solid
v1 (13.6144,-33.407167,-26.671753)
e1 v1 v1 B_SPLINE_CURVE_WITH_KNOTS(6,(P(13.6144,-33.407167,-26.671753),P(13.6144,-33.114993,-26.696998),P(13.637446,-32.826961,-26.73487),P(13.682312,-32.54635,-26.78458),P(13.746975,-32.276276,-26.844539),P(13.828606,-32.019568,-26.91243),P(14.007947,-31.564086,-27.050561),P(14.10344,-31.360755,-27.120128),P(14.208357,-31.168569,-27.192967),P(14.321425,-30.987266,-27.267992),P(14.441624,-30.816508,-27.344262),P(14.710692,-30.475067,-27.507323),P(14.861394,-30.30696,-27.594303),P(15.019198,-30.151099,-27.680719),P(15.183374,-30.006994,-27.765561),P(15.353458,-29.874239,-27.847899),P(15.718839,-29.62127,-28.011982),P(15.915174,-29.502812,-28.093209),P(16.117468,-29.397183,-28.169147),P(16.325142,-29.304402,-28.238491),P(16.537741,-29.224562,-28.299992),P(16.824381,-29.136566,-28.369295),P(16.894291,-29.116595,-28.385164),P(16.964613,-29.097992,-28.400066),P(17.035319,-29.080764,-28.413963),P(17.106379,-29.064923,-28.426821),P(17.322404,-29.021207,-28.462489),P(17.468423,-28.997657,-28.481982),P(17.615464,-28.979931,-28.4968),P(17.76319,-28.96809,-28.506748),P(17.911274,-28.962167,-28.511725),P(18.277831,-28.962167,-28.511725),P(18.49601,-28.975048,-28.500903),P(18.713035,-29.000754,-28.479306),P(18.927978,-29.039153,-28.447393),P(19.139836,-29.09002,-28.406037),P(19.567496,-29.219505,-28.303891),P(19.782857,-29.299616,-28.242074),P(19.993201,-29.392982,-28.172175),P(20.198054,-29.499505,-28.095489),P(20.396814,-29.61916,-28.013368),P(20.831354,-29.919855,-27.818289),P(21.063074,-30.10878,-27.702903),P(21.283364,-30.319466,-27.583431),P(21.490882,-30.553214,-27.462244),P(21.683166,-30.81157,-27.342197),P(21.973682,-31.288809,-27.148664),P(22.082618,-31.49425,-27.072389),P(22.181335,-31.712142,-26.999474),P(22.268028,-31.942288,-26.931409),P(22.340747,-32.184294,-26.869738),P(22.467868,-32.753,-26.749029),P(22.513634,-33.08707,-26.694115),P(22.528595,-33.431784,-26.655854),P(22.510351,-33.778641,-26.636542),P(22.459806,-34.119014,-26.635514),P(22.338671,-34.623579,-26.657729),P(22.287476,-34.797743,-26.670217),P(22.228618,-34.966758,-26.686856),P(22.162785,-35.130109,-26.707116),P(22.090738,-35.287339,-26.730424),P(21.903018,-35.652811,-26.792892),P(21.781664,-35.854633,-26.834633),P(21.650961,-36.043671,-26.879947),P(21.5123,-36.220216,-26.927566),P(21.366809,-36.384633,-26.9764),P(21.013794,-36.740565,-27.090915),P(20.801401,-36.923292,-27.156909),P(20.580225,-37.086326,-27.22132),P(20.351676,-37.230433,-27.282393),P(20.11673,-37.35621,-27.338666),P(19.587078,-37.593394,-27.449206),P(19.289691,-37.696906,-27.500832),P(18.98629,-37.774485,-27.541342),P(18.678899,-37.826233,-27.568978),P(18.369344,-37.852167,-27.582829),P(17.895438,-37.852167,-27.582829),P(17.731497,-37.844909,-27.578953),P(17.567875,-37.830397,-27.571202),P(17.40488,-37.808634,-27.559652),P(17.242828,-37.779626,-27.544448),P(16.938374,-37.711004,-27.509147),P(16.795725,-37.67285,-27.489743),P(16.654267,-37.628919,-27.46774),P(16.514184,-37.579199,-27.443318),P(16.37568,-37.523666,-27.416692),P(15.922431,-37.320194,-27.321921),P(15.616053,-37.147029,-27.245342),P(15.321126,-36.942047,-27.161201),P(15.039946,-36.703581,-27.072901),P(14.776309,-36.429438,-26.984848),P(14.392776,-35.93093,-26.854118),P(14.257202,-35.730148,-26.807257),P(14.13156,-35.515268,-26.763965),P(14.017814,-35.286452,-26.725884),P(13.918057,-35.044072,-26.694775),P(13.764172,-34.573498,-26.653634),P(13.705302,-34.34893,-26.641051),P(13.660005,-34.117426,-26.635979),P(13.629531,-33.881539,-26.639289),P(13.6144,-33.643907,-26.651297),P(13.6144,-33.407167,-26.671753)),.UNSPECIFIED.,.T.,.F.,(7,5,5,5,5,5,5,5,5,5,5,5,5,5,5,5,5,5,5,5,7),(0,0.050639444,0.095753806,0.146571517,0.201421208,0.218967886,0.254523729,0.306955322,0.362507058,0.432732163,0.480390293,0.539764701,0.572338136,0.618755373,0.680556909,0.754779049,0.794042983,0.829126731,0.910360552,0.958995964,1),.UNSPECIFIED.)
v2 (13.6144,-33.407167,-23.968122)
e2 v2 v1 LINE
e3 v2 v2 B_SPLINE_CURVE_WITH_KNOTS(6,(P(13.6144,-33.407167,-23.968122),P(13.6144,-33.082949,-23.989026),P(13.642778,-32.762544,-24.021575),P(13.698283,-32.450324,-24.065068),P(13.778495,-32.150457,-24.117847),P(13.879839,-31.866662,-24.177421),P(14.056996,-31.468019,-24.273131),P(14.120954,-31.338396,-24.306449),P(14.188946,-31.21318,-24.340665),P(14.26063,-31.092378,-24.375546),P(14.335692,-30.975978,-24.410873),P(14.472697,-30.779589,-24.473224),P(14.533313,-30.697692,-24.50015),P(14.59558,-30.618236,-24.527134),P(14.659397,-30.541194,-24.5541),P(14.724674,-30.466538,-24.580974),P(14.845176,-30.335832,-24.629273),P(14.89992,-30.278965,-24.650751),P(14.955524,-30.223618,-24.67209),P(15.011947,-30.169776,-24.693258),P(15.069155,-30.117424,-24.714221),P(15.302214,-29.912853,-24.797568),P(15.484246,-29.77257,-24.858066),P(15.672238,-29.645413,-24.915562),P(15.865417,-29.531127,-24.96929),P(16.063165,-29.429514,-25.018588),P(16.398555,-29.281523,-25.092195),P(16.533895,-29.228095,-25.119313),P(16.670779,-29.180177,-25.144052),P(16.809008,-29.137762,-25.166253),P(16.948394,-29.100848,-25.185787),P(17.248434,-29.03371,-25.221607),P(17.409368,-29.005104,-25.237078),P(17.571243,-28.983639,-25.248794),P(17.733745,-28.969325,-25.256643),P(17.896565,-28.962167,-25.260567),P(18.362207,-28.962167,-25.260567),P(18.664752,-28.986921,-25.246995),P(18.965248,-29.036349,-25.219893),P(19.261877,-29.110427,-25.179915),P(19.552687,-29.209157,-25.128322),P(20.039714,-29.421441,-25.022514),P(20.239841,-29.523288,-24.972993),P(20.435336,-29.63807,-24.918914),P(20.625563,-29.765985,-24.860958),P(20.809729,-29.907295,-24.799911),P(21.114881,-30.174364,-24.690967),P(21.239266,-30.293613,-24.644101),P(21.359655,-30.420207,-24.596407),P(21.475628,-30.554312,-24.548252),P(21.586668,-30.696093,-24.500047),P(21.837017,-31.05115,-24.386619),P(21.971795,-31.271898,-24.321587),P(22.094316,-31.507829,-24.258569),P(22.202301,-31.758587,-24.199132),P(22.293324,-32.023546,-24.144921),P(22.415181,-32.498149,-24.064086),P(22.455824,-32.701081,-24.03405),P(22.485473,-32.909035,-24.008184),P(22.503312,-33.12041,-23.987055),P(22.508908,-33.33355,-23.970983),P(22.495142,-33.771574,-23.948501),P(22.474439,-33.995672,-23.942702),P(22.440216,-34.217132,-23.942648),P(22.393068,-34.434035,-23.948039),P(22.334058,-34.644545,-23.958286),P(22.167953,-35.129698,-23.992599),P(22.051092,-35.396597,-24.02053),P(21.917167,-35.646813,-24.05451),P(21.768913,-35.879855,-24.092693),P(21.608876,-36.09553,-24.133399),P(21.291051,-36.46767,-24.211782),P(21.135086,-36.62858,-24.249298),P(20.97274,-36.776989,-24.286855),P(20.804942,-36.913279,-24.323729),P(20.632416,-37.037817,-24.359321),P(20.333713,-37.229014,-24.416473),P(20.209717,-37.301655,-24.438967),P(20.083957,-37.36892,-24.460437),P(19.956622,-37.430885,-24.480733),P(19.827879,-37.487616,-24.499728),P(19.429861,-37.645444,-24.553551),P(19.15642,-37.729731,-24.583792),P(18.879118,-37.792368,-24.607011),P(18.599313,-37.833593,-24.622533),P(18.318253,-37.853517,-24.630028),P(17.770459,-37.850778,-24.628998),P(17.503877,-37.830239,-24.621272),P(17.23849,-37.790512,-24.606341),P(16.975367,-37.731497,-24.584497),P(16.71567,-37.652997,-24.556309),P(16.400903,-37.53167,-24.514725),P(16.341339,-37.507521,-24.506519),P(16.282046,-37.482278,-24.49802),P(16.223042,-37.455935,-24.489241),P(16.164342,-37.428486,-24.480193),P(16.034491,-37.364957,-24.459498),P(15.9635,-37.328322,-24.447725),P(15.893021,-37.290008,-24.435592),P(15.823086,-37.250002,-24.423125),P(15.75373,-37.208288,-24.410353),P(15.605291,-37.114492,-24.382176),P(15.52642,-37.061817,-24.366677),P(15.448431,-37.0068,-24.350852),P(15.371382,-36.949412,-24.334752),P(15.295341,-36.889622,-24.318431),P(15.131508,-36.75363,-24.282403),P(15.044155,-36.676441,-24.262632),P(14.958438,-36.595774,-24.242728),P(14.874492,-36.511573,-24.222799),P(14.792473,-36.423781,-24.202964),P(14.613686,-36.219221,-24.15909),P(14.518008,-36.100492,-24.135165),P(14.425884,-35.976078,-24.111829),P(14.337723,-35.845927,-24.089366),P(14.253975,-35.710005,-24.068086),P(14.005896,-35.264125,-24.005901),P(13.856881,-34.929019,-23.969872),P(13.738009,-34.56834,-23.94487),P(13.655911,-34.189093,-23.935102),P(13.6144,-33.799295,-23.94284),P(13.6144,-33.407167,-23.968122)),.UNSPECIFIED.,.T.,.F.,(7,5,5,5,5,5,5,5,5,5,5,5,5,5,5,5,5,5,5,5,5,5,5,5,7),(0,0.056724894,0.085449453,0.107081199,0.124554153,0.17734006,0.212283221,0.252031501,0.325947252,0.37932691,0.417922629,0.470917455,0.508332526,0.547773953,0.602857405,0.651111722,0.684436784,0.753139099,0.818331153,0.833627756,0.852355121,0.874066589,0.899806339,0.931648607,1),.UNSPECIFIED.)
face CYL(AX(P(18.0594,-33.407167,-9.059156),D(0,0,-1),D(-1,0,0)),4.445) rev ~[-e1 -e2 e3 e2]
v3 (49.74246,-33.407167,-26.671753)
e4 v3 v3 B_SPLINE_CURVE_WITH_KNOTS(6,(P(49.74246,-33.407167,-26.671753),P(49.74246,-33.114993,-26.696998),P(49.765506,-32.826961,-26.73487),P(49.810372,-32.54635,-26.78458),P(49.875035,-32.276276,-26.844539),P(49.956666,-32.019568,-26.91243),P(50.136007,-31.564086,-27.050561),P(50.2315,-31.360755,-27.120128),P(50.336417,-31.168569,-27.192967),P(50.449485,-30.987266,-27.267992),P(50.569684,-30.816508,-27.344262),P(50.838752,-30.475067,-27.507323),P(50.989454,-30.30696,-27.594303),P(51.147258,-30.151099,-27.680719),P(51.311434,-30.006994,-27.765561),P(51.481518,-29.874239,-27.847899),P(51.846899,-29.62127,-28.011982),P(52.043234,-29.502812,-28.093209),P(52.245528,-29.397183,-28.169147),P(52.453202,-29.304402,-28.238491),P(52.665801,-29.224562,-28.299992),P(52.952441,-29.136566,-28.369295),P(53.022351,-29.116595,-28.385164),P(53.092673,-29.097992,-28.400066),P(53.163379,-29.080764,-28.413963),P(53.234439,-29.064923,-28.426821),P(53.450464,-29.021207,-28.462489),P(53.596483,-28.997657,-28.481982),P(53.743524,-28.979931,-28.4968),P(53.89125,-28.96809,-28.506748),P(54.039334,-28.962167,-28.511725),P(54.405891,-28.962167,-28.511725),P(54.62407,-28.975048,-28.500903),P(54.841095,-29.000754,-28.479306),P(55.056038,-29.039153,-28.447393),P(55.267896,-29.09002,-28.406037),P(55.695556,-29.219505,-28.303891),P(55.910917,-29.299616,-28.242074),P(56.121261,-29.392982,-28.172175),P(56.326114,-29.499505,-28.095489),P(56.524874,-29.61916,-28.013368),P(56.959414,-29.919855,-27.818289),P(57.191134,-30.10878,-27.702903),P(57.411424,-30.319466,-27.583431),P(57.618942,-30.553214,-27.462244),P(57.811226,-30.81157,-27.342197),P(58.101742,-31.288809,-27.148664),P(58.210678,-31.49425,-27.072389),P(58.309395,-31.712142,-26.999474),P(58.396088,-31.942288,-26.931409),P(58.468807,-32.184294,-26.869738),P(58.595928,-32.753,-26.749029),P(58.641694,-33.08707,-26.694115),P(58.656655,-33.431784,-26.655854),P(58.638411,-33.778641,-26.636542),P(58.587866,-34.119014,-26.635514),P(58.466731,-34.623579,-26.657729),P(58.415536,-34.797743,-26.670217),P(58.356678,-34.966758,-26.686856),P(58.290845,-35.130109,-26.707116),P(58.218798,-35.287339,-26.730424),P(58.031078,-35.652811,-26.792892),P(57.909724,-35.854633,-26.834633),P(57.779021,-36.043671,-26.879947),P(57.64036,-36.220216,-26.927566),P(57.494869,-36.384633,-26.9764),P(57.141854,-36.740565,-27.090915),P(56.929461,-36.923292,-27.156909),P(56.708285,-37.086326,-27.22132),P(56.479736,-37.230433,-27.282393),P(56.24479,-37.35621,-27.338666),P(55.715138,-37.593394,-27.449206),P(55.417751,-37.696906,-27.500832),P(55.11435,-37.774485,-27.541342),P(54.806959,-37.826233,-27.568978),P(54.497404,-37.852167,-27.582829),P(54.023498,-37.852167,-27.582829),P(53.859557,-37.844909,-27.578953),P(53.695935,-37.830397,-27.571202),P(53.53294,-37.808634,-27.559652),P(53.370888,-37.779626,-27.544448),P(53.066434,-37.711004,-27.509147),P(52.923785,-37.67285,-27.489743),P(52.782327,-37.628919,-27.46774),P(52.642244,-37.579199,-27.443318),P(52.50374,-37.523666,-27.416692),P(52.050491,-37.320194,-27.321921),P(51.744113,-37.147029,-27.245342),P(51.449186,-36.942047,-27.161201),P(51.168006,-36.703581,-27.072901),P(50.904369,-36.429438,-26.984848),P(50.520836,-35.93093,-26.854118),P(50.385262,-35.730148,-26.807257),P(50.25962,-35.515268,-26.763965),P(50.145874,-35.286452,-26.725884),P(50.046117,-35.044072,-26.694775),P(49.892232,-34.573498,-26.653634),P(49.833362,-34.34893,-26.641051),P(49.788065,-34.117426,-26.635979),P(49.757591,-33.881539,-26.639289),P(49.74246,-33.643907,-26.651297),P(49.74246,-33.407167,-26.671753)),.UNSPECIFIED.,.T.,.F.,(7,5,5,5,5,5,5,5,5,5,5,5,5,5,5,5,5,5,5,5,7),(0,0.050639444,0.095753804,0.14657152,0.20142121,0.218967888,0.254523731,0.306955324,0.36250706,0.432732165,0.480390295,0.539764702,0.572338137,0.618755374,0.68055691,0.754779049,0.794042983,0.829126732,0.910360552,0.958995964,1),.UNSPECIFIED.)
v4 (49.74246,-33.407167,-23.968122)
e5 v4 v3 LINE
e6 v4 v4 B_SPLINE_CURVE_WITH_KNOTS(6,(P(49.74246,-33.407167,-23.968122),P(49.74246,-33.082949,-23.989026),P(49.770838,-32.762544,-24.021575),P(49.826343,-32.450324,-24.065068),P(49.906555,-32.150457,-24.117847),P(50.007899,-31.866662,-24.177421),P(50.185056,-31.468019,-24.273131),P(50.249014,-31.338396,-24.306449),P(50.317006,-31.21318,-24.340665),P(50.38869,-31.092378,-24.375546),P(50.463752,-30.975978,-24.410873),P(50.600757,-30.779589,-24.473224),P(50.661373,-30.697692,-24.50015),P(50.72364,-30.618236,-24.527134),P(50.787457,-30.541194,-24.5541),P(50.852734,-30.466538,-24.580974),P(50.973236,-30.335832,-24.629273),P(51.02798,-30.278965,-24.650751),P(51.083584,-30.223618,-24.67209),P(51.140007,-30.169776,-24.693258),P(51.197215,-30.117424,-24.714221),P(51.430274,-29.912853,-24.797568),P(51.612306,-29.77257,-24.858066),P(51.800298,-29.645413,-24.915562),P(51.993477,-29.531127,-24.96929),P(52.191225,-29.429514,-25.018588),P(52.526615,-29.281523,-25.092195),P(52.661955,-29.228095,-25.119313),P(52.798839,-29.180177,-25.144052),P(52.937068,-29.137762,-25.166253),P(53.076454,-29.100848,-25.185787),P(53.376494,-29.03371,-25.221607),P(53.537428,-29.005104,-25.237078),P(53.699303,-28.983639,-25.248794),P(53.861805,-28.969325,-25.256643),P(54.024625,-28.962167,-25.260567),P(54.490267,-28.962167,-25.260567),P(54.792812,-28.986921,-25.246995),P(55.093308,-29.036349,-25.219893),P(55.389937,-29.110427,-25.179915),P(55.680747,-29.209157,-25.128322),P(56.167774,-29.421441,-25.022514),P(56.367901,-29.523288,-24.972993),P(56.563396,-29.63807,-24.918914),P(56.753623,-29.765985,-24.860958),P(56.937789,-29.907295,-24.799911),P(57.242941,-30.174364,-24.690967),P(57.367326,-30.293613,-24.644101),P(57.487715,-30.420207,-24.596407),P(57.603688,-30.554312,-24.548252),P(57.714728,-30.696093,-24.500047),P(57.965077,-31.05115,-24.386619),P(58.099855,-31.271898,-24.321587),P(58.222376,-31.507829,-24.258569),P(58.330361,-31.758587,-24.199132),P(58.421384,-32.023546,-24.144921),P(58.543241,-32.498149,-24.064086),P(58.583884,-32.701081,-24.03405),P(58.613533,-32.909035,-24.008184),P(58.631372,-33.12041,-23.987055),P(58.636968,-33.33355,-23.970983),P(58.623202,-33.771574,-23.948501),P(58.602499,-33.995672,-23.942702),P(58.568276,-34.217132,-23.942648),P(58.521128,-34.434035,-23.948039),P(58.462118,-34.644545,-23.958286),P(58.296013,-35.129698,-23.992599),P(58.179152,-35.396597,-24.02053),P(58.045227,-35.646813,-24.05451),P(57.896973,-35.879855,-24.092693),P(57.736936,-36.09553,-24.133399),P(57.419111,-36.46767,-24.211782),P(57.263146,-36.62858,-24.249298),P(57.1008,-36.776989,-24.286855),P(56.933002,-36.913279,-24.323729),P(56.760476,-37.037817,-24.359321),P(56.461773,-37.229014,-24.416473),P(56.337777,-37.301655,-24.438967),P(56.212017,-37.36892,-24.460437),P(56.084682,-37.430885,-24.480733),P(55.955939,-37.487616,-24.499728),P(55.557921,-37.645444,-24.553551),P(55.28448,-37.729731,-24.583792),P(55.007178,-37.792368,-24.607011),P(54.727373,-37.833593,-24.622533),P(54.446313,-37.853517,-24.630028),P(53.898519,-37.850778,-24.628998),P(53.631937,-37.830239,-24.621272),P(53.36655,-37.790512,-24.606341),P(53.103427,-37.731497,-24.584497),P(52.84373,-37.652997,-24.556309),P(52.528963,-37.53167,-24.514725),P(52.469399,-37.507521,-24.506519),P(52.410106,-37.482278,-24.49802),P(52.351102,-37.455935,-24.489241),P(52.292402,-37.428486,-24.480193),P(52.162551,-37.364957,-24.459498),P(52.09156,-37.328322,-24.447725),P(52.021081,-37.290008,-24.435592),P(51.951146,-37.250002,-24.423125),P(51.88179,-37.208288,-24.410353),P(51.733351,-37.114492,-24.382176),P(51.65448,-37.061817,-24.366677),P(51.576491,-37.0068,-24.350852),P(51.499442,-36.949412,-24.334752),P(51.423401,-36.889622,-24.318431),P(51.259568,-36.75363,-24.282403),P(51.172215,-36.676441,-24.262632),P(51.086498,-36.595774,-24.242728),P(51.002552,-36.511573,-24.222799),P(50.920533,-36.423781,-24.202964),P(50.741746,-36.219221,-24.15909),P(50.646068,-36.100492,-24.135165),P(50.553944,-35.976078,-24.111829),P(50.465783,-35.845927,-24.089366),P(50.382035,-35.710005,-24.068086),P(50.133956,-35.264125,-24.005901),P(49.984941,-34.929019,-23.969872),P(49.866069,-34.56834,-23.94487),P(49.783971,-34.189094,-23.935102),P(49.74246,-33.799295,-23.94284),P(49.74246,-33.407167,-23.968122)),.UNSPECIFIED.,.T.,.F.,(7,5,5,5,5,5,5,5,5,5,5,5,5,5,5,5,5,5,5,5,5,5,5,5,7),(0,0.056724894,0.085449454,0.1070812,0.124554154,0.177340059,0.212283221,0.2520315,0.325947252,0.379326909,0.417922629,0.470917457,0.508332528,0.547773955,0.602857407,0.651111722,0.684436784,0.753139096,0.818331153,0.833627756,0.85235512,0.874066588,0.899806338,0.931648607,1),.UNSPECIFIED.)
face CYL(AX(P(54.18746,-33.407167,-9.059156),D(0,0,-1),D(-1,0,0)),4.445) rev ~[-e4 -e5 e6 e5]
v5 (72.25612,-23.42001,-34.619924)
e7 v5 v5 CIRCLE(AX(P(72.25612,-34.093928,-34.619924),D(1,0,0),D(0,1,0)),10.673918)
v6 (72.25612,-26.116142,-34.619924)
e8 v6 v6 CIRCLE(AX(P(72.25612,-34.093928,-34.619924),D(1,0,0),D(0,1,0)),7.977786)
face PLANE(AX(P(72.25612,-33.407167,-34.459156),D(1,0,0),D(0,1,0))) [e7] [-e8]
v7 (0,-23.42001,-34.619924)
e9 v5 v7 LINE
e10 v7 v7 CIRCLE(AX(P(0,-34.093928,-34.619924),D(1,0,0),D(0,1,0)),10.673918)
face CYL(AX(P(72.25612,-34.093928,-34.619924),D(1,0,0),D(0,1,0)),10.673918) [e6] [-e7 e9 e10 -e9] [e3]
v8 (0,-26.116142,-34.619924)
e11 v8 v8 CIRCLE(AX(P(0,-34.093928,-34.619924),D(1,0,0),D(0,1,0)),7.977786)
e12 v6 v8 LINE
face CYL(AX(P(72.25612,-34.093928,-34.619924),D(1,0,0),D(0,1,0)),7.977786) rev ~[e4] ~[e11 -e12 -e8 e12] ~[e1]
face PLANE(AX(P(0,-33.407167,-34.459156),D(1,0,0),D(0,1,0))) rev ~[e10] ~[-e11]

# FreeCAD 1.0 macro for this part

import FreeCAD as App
import Part
import Sketcher

V = App.Vector
Q = App.Units.Quantity

doc = App.newDocument("Part")
params = doc.addObject("Spreadsheet::Sheet", "Params")
for row, (alias, value) in enumerate([
    ("sketch1_width", "1 in"),
    ("pad1_length", "72.25612 mm"),
    ("pocket1_length", "82.87319 mm"),
    ("sketch3_diameter", "0.35 in"),
    ("hole_diameter", "0.35 in"),
    ("hole_depth", "0.5 in"),
    ("sketch4_width", "1 in"),
    ("pocket2_length", "88.86488 mm"),
], start=1):
    params.set(f"A{row}", alias)
    params.set(f"B{row}", "=" + value)
    params.setAlias(f"B{row}", alias)

body = doc.addObject("PartDesign::Body", "Body")

# Sketch on YZ plane
sketch1 = body.newObject("Sketcher::SketchObject", "Sketch")
sketch1.AttachmentSupport = (doc.getObject("YZ_Plane"), [""])
sketch1.MapMode = "FlatFace"
sketch1.addGeometry([
    Part.LineSegment(V(-46, -22, 0), V(-46, -47, 0)),
    Part.LineSegment(V(-46, -47, 0), V(-21, -47, 0)),
    Part.LineSegment(V(-21, -47, 0), V(-21, -22, 0)),
    Part.LineSegment(V(-21, -22, 0), V(-46, -22, 0)),
], False)
sketch1.addConstraint([
    Sketcher.Constraint("Coincident", 0, 2, 1, 1),
    Sketcher.Constraint("Coincident", 1, 2, 2, 1),
    Sketcher.Constraint("Coincident", 2, 2, 3, 1),
    Sketcher.Constraint("Coincident", 3, 2, 0, 1),
    Sketcher.Constraint("Vertical", 0),
    Sketcher.Constraint("Horizontal", 1),
    Sketcher.Constraint("Vertical", 2),
    Sketcher.Constraint("Horizontal", 3),
    Sketcher.Constraint("Equal", 3, 0),
    Sketcher.Constraint("DistanceX", 1, 1, 1, 2, Q("1 in")),
    Sketcher.Constraint("DistanceX", 0, 2, -1, 1, 46.107167),
    Sketcher.Constraint("DistanceY", 0, 2, -1, 1, 47.159156),
])
sketch1.setExpression("Constraints[9]", "Params.sketch1_width")
pad1 = body.newObject("PartDesign::Pad", "Pad")
pad1.Profile = sketch1
pad1.setExpression("Length", "Params.pad1_length")

# Sketch on YZ plane
sketch2 = body.newObject("Sketcher::SketchObject", "Sketch001")
sketch2.AttachmentSupport = (doc.getObject("YZ_Plane"), [""])
sketch2.MapMode = "FlatFace"
sketch2.AttachmentOffset = App.Placement(V(0, 0, 72.25612), App.Rotation())
sketch2.addGeometry(Part.Circle(V(-34, -35, 0), V(0, 0, 1), 8), False)
sketch2.addConstraint([
    Sketcher.Constraint("Diameter", 0, 15.955572),
    Sketcher.Constraint("DistanceX", 0, 3, -1, 1, 34.093928),
    Sketcher.Constraint("DistanceY", 0, 3, -1, 1, 34.619924),
])
pocket1 = body.newObject("PartDesign::Pocket", "Pocket")
pocket1.Profile = sketch2
pocket1.setExpression("Length", "Params.pocket1_length")

# Sketch on XY plane
sketch3 = body.newObject("Sketcher::SketchObject", "Sketch002")
sketch3.AttachmentSupport = (doc.getObject("XY_Plane"), [""])
sketch3.MapMode = "FlatFace"
sketch3.AttachmentOffset = App.Placement(V(0, 0, -21.759156), App.Rotation())
sketch3.addGeometry([
    Part.Circle(V(18.1, -33.4, 0), V(0, 0, 1), 4.4),
    Part.Circle(V(54.2, -33.4, 0), V(0, 0, 1), 4.4),
], False)
sketch3.addConstraint([
    Sketcher.Constraint("Equal", 0, 1),
    Sketcher.Constraint("Horizontal", 0, 3, 1, 3),
    Sketcher.Constraint("Diameter", 0, Q("0.35 in")),
    Sketcher.Constraint("DistanceX", -1, 1, 0, 3, Q("0.711 in")),
    Sketcher.Constraint("DistanceX", -1, 1, 1, 3, 54.18746),
    Sketcher.Constraint("DistanceY", 0, 3, -1, 1, 33.407167),
])
sketch3.setExpression("Constraints[2]", "Params.sketch3_diameter")
doc.recompute()
hole = body.newObject("PartDesign::Hole", "Hole")
hole.Profile = sketch3
hole.ThreadType = "None"
hole.setExpression("Diameter", "Params.hole_diameter")
hole.DepthType = "Dimension"
hole.setExpression("Depth", "Params.hole_depth")
hole.DrillPoint = "Flat"

# Sketch on YZ plane
sketch4 = body.newObject("Sketcher::SketchObject", "Sketch003")
sketch4.AttachmentSupport = (doc.getObject("YZ_Plane"), [""])
sketch4.MapMode = "FlatFace"
sketch4.AttachmentOffset = App.Placement(V(0, 0, 72.25612), App.Rotation())
sketch4.addGeometry([
    Part.LineSegment(V(-46, -22, 0), V(-46, -47, 0)),  # 0
    Part.LineSegment(V(-46, -47, 0), V(-21, -47, 0)),  # 1
    Part.LineSegment(V(-21, -47, 0), V(-21, -22, 0)),  # 2
    Part.LineSegment(V(-21, -22, 0), V(-46, -22, 0)),  # 3
    Part.Circle(V(-34, -35, 0), V(0, 0, 1), 11),  # 4
], False)
sketch4.addConstraint([
    Sketcher.Constraint("Coincident", 0, 2, 1, 1),
    Sketcher.Constraint("Coincident", 1, 2, 2, 1),
    Sketcher.Constraint("Coincident", 2, 2, 3, 1),
    Sketcher.Constraint("Coincident", 3, 2, 0, 1),
    Sketcher.Constraint("Vertical", 0),
    Sketcher.Constraint("Horizontal", 1),
    Sketcher.Constraint("Vertical", 2),
    Sketcher.Constraint("Horizontal", 3),
    Sketcher.Constraint("Equal", 3, 0),
    Sketcher.Constraint("DistanceX", 1, 1, 1, 2, Q("1 in")),
    Sketcher.Constraint("Diameter", 4, 21.347836),
    Sketcher.Constraint("DistanceX", 0, 2, 4, 3, 12.013239),
    Sketcher.Constraint("DistanceX", 4, 3, -1, 1, 34.093928),
    Sketcher.Constraint("DistanceY", 4, 3, -1, 1, 34.619924),
    Sketcher.Constraint("DistanceY", 0, 2, -1, 1, 47.159156),
])
sketch4.setExpression("Constraints[9]", "Params.sketch4_width")
pocket2 = body.newObject("PartDesign::Pocket", "Pocket001")
pocket2.Profile = sketch4
pocket2.setExpression("Length", "Params.pocket2_length")

doc.recompute()
